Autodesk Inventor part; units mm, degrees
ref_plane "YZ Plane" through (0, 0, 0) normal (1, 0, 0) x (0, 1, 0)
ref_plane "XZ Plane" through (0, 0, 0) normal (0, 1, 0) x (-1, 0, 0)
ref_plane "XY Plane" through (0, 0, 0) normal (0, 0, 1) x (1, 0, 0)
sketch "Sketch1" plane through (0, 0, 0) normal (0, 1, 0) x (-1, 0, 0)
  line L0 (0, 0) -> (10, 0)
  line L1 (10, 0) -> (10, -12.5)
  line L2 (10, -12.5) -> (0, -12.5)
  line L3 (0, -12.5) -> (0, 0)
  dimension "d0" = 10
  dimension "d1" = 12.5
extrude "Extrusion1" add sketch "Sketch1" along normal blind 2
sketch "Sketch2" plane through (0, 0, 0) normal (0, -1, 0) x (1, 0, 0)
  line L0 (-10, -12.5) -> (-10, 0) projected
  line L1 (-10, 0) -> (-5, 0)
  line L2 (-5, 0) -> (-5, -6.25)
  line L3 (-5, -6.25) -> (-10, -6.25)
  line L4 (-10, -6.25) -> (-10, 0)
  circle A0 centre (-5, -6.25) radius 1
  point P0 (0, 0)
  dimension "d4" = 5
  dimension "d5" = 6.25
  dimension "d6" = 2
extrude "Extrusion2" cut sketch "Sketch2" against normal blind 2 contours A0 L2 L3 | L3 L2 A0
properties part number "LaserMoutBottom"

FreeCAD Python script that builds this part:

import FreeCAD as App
import Part
import Sketcher
from FreeCAD import Vector
Q = App.Units.Quantity


def add_polygon(sketch, points):
    """Adds a closed chain of lines whose ends are joined by coincident constraints."""
    first, n = sketch.GeometryCount, len(points)
    for a, b in zip(points, points[1:] + points[:1]):
        sketch.addGeometry(Part.LineSegment(App.Vector(*a, 0), App.Vector(*b, 0)), False)
    for i in range(n):
        sketch.addConstraint(Sketcher.Constraint("Coincident", first + i, 2, first + (i + 1) % n, 1))

doc = App.newDocument("Part")
body = doc.addObject("PartDesign::Body", "Body")

# Sketch on XZ plane
sketch1 = body.newObject("Sketcher::SketchObject", "Sketch")
sketch1.AttachmentSupport = (doc.getObject("XZ_Plane"), [""])
sketch1.MapMode = "FlatFace"
add_polygon(sketch1, [(-10, 0), (0, 0), (0, -12.5), (-10, -12.5)])  # lines 0-3
sketch1.addConstraint([
    Sketcher.Constraint("Horizontal", 0),
    Sketcher.Constraint("Vertical", 1),
    Sketcher.Constraint("Horizontal", 2),
    Sketcher.Constraint("Vertical", 3),
    Sketcher.Constraint("Coincident", 0, 2, -1, 1),
    Sketcher.Constraint("DistanceX", 0, 1, 0, 2, Q("10 mm")),
    Sketcher.Constraint("DistanceY", 1, 2, 1, 1, Q("12.5 mm")),
])
pad1 = body.newObject("PartDesign::Pad", "Pad")
pad1.Profile = sketch1
pad1.Length = 2
pad1.Reversed = True

# Sketch on XZ plane
sketch2 = body.newObject("Sketcher::SketchObject", "Sketch001")
sketch2.AttachmentSupport = (doc.getObject("XZ_Plane"), [""])
sketch2.MapMode = "FlatFace"
sketch2.addGeometry(Part.Circle(Vector(-5, -6.25, 0), Vector(0, 0, 1), 1), False)
sketch2.addConstraint([
    Sketcher.Constraint("Diameter", 0, Q("2 mm")),
    Sketcher.Constraint("DistanceX", 0, 3, -1, 1, Q("5 mm")),
    Sketcher.Constraint("DistanceY", 0, 3, -1, 1, Q("6.25 mm")),
])
pocket1 = body.newObject("PartDesign::Pocket", "Pocket")
pocket1.Profile = sketch2
pocket1.Length = 2

doc.recompute()
